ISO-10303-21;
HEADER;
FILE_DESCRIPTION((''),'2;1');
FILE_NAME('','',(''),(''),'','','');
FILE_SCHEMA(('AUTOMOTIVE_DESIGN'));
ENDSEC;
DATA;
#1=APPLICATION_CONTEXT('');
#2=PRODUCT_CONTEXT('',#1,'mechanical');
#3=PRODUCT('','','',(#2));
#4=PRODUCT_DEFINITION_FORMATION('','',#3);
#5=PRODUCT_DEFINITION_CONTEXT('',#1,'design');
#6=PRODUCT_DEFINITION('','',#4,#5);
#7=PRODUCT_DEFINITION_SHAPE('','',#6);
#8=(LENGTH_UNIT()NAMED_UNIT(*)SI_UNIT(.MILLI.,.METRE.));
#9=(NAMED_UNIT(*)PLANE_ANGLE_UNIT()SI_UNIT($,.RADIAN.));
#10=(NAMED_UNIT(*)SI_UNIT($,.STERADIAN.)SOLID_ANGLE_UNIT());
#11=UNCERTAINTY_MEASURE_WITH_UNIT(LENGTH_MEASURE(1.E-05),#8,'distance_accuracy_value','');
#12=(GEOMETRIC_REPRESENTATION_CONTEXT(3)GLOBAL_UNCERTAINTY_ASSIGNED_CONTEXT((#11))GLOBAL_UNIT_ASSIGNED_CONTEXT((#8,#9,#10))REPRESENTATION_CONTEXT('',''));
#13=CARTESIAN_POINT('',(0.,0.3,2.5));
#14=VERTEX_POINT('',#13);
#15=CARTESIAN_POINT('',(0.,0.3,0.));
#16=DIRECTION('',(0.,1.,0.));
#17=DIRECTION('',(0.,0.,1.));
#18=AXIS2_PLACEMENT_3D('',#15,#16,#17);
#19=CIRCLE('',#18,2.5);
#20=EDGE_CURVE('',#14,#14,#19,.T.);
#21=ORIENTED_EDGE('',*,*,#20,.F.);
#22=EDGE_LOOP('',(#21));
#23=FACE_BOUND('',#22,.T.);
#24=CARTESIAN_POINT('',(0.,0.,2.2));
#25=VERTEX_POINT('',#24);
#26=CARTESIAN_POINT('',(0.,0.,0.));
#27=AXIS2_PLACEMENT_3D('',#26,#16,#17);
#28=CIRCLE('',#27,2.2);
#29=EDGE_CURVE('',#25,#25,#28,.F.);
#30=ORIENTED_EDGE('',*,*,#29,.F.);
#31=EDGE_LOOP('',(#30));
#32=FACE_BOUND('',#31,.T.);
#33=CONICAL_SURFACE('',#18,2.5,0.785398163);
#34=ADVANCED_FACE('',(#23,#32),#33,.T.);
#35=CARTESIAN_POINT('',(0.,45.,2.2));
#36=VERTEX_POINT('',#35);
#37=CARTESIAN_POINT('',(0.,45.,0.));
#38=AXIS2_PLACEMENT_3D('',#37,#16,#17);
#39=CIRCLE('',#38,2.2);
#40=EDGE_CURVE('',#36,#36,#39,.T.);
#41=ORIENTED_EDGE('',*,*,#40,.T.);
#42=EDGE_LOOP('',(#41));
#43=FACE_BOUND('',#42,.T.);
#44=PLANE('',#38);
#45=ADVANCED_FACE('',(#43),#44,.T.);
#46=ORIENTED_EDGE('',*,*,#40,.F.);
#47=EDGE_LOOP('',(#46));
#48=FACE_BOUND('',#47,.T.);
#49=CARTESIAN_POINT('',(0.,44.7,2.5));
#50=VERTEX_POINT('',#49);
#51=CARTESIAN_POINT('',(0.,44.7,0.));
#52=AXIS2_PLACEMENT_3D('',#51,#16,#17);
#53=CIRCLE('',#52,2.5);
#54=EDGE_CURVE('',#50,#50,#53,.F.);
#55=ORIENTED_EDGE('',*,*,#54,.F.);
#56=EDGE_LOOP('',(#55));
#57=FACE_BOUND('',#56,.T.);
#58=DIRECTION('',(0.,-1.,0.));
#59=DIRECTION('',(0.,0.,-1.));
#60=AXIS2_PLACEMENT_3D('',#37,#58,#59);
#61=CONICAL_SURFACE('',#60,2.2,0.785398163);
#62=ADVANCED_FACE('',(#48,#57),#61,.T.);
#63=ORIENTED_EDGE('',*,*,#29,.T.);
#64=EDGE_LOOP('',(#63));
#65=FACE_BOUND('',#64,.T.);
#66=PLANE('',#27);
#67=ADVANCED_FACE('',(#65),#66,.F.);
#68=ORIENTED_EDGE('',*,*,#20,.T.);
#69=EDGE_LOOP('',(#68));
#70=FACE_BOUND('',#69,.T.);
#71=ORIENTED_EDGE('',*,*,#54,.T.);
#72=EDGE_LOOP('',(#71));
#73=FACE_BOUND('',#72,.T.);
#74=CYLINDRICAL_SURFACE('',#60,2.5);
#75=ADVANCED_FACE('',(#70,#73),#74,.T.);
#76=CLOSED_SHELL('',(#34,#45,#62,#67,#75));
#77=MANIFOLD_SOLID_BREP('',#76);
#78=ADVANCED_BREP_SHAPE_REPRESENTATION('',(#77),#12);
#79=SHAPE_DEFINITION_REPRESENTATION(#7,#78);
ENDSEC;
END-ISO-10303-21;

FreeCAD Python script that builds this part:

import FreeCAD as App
import Part
import Sketcher
from FreeCAD import Vector


def edges_at(feature, points):
    """Names of the edges that pass closest to the given points."""
    edges = feature.Shape.Edges
    near = lambda p: min(range(len(edges)), key=lambda i: edges[i].distToShape(Part.Vertex(*p))[0])
    return sorted({f"Edge{near(p) + 1}" for p in points})

doc = App.newDocument("Part")
body = doc.addObject("PartDesign::Body", "Body")

# Sketch on XZ plane
sketch1 = body.newObject("Sketcher::SketchObject", "Sketch")
sketch1.AttachmentSupport = (doc.getObject("XZ_Plane"), [""])
sketch1.MapMode = "FlatFace"
sketch1.addGeometry(Part.Circle(Vector(0, 0, 0), Vector(0, 0, 1), 2.5), False)
sketch1.addConstraint(Sketcher.Constraint("Coincident", 0, 3, -1, 1))
sketch1.addConstraint(Sketcher.Constraint("Diameter", 0, 5.0))
pad1 = body.newObject("PartDesign::Pad", "Pad")
pad1.Profile = sketch1
pad1.Length = 45
pad1.Reversed = True
doc.recompute()

chamfer = body.newObject("PartDesign::Chamfer", "Chamfer")
chamfer.Base = (pad1, edges_at(pad1, [(-2.5, 0, 0), (-2.5, 45, 0)]))
chamfer.Size = 0.3

doc.recompute()
